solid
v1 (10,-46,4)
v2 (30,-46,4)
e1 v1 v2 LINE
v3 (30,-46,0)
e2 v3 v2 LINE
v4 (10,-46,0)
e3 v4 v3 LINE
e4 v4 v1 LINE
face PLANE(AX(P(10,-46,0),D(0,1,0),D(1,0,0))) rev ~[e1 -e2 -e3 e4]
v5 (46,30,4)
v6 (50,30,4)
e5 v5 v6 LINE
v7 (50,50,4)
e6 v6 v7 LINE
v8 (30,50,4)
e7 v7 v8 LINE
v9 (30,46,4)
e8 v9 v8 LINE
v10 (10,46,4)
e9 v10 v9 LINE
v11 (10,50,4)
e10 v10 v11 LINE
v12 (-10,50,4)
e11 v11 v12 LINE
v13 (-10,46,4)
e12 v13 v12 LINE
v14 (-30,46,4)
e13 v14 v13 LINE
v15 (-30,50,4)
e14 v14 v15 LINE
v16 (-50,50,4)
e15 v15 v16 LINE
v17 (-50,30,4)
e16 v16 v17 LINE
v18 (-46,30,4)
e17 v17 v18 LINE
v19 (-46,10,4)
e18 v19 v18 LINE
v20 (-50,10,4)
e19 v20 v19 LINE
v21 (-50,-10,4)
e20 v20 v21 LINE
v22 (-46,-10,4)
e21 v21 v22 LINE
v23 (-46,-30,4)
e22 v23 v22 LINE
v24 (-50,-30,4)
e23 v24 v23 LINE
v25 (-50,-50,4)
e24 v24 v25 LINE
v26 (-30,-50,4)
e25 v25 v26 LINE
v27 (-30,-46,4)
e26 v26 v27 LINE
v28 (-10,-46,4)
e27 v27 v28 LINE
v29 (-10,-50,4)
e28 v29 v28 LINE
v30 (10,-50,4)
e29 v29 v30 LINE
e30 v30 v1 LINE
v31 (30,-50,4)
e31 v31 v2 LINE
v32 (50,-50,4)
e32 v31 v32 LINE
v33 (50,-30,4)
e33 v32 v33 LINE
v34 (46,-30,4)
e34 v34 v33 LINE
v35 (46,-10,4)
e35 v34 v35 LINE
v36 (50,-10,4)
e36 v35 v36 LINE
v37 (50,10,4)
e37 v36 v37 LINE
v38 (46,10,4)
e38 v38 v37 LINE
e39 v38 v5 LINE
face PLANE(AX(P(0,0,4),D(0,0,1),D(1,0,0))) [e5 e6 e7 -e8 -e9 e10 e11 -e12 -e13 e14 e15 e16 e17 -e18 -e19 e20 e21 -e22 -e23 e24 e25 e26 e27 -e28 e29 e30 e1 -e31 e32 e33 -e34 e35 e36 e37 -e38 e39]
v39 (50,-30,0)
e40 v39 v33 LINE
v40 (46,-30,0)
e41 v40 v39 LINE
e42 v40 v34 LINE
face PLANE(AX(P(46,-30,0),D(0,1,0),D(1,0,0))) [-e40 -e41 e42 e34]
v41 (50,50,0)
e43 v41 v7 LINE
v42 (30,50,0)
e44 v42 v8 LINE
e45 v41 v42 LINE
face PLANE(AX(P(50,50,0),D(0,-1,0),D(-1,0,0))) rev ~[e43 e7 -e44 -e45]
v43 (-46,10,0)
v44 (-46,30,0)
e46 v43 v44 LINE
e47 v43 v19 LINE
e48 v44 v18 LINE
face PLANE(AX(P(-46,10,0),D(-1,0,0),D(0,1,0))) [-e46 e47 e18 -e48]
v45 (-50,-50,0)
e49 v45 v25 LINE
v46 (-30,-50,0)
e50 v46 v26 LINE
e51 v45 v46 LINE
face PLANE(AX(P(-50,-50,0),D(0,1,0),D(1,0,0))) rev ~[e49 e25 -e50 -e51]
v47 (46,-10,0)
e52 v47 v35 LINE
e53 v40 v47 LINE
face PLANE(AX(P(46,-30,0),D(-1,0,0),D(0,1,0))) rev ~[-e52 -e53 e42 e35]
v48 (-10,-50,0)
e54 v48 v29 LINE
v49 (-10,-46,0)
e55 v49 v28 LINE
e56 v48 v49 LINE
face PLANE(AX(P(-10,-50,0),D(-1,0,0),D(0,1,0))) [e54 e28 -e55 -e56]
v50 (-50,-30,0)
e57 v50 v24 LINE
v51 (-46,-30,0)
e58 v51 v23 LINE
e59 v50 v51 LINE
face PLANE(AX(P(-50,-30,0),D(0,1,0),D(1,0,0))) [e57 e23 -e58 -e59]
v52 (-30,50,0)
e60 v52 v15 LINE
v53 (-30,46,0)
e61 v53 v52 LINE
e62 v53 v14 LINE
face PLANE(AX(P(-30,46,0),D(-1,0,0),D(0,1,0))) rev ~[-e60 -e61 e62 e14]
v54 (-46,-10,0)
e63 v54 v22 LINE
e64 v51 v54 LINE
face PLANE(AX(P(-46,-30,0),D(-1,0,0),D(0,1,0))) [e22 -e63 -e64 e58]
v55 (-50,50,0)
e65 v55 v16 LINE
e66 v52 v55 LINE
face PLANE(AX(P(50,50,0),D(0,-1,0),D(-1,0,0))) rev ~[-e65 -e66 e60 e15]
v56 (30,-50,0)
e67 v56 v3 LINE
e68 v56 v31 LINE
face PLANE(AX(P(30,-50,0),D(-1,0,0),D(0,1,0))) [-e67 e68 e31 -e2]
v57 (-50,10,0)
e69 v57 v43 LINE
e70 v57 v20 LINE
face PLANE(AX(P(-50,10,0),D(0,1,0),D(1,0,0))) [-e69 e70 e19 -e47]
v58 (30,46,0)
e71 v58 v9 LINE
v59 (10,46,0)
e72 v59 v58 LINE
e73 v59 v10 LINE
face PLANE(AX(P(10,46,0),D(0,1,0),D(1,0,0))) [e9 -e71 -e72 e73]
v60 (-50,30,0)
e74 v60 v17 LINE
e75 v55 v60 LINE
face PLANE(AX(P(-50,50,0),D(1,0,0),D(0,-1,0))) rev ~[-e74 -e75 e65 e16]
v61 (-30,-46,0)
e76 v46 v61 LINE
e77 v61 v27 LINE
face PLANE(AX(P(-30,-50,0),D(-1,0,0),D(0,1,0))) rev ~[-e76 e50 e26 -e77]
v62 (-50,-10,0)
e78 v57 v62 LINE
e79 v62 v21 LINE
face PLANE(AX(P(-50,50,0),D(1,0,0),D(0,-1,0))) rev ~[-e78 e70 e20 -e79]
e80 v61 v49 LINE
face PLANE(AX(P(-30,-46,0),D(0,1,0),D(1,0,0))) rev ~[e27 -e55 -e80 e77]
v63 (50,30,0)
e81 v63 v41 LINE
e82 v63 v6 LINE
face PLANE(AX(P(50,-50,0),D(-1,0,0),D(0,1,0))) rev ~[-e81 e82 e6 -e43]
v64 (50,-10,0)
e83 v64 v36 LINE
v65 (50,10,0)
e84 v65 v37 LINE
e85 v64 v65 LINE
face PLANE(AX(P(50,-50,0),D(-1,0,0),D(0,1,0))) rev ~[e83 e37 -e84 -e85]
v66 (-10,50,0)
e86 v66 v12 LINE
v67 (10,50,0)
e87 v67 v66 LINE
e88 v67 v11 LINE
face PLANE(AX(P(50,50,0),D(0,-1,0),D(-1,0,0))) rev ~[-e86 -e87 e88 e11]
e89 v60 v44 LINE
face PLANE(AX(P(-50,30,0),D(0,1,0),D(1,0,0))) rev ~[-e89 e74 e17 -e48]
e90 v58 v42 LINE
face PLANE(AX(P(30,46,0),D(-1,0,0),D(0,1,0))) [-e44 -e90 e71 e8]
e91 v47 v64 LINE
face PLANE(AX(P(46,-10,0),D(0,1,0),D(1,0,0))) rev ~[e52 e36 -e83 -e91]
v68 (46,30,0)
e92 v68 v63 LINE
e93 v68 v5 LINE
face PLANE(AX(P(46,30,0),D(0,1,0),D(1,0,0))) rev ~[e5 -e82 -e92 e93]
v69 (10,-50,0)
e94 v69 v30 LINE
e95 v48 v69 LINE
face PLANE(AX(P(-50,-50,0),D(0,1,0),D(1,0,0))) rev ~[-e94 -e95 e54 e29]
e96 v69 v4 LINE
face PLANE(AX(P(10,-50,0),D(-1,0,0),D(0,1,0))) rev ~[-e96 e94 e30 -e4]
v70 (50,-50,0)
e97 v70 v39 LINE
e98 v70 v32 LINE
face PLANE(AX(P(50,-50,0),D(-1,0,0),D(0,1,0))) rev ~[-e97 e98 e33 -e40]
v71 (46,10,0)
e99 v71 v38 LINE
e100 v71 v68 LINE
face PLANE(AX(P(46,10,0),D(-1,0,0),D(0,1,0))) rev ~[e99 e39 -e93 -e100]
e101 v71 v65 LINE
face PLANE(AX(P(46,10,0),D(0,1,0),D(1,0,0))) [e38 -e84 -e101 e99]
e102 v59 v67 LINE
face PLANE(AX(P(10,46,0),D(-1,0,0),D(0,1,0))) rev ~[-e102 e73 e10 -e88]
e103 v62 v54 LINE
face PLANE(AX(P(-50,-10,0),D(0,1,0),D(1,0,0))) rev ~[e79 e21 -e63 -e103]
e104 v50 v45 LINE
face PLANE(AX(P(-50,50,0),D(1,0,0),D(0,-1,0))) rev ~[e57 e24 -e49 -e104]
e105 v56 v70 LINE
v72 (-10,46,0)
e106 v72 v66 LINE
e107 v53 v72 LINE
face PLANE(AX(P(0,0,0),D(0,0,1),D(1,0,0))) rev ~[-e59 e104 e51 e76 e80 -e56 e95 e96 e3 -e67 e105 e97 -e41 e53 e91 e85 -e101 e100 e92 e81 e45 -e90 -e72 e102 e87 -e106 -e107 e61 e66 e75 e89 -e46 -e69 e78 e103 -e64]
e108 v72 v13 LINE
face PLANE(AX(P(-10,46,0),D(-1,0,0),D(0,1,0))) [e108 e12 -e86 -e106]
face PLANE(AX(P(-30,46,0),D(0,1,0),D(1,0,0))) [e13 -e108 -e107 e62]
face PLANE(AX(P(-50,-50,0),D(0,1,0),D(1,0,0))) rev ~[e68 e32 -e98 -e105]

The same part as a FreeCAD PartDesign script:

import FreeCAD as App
import Part
import Sketcher
from FreeCAD import Vector
Q = App.Units.Quantity

doc = App.newDocument("Part")
body = doc.addObject("PartDesign::Body", "Body")

# Sketch on XY plane
sketch1 = body.newObject("Sketcher::SketchObject", "Sketch")
sketch1.AttachmentSupport = (doc.getObject("XY_Plane"), [""])
sketch1.MapMode = "FlatFace"
sketch1.addGeometry([
    Part.LineSegment(Vector(-50, -50, 0), Vector(50, -50, 0)),
    Part.LineSegment(Vector(50, -50, 0), Vector(50, 50, 0)),
    Part.LineSegment(Vector(50, 50, 0), Vector(-50, 50, 0)),
    Part.LineSegment(Vector(-50, 50, 0), Vector(-50, -50, 0)),
], False)
sketch1.addConstraint([
    Sketcher.Constraint("Coincident", 0, 2, 1, 1),
    Sketcher.Constraint("Coincident", 1, 2, 2, 1),
    Sketcher.Constraint("Coincident", 2, 2, 3, 1),
    Sketcher.Constraint("Coincident", 3, 2, 0, 1),
    Sketcher.Constraint("Horizontal", 0),
    Sketcher.Constraint("Vertical", 1),
    Sketcher.Constraint("Horizontal", 2),
    Sketcher.Constraint("Vertical", 3),
    Sketcher.Constraint("Symmetric", 0, 2, 2, 2, -1, 1),
    Sketcher.Constraint("Equal", 2, 1),
    Sketcher.Constraint("DistanceX", 0, 1, 0, 2, Q("100 mm")),
])
pad1 = body.newObject("PartDesign::Pad", "Pad")
pad1.Profile = sketch1
pad1.Length = 4

# Sketch on XY plane
sketch2 = body.newObject("Sketcher::SketchObject", "Sketch001")
sketch2.AttachmentSupport = (doc.getObject("XY_Plane"), [""])
sketch2.MapMode = "FlatFace"
sketch2.addGeometry([
    Part.LineSegment(Vector(-50, 30, 0), Vector(-50, 10, 0)),  # 0
    Part.LineSegment(Vector(-50, 10, 0), Vector(-46, 10, 0)),  # 1
    Part.LineSegment(Vector(-46, 10, 0), Vector(-46, 30, 0)),  # 2
    Part.LineSegment(Vector(-46, 30, 0), Vector(-50, 30, 0)),  # 3
    Part.LineSegment(Vector(-50, -10, 0), Vector(-50, -30, 0)),  # 4
    Part.LineSegment(Vector(-50, -30, 0), Vector(-46, -30, 0)),  # 5
    Part.LineSegment(Vector(-46, -30, 0), Vector(-46, -10, 0)),  # 6
    Part.LineSegment(Vector(-46, -10, 0), Vector(-50, -10, 0)),  # 7
    Part.LineSegment(Vector(-30, -46, 0), Vector(-30, -50, 0)),  # 8
    Part.LineSegment(Vector(-30, -50, 0), Vector(-10, -50, 0)),  # 9
    Part.LineSegment(Vector(-10, -50, 0), Vector(-10, -46, 0)),  # 10
    Part.LineSegment(Vector(-10, -46, 0), Vector(-30, -46, 0)),  # 11
    Part.LineSegment(Vector(10, -46, 0), Vector(10, -50, 0)),  # 12
    Part.LineSegment(Vector(10, -50, 0), Vector(30, -50, 0)),  # 13
    Part.LineSegment(Vector(30, -50, 0), Vector(30, -46, 0)),  # 14
    Part.LineSegment(Vector(30, -46, 0), Vector(10, -46, 0)),  # 15
    Part.LineSegment(Vector(46, -10, 0), Vector(46, -30, 0)),  # 16
    Part.LineSegment(Vector(46, -30, 0), Vector(50, -30, 0)),  # 17
    Part.LineSegment(Vector(50, -30, 0), Vector(50, -10, 0)),  # 18
    Part.LineSegment(Vector(50, -10, 0), Vector(46, -10, 0)),  # 19
    Part.LineSegment(Vector(46, 30, 0), Vector(46, 10, 0)),  # 20
    Part.LineSegment(Vector(46, 10, 0), Vector(50, 10, 0)),  # 21
    Part.LineSegment(Vector(50, 10, 0), Vector(50, 30, 0)),  # 22
    Part.LineSegment(Vector(50, 30, 0), Vector(46, 30, 0)),  # 23
    Part.LineSegment(Vector(10, 50, 0), Vector(10, 46, 0)),  # 24
    Part.LineSegment(Vector(10, 46, 0), Vector(30, 46, 0)),  # 25
    Part.LineSegment(Vector(30, 46, 0), Vector(30, 50, 0)),  # 26
    Part.LineSegment(Vector(30, 50, 0), Vector(10, 50, 0)),  # 27
    Part.LineSegment(Vector(-30, 50, 0), Vector(-30, 46, 0)),  # 28
    Part.LineSegment(Vector(-30, 46, 0), Vector(-10, 46, 0)),  # 29
    Part.LineSegment(Vector(-10, 46, 0), Vector(-10, 50, 0)),  # 30
    Part.LineSegment(Vector(-10, 50, 0), Vector(-30, 50, 0)),  # 31
], False)
sketch2.addConstraint([
    Sketcher.Constraint("Coincident", 0, 2, 1, 1),
    Sketcher.Constraint("Coincident", 1, 2, 2, 1),
    Sketcher.Constraint("Coincident", 2, 2, 3, 1),
    Sketcher.Constraint("Coincident", 3, 2, 0, 1),
    Sketcher.Constraint("Coincident", 4, 2, 5, 1),
    Sketcher.Constraint("Coincident", 5, 2, 6, 1),
    Sketcher.Constraint("Coincident", 6, 2, 7, 1),
    Sketcher.Constraint("Coincident", 7, 2, 4, 1),
    Sketcher.Constraint("Coincident", 8, 2, 9, 1),
    Sketcher.Constraint("Coincident", 9, 2, 10, 1),
    Sketcher.Constraint("Coincident", 10, 2, 11, 1),
    Sketcher.Constraint("Coincident", 11, 2, 8, 1),
    Sketcher.Constraint("Coincident", 12, 2, 13, 1),
    Sketcher.Constraint("Coincident", 13, 2, 14, 1),
    Sketcher.Constraint("Coincident", 14, 2, 15, 1),
    Sketcher.Constraint("Coincident", 15, 2, 12, 1),
    Sketcher.Constraint("Coincident", 16, 2, 17, 1),
    Sketcher.Constraint("Coincident", 17, 2, 18, 1),
    Sketcher.Constraint("Coincident", 18, 2, 19, 1),
    Sketcher.Constraint("Coincident", 19, 2, 16, 1),
    Sketcher.Constraint("Coincident", 20, 2, 21, 1),
    Sketcher.Constraint("Coincident", 21, 2, 22, 1),
    Sketcher.Constraint("Coincident", 22, 2, 23, 1),
    Sketcher.Constraint("Coincident", 23, 2, 20, 1),
    Sketcher.Constraint("Coincident", 24, 2, 25, 1),
    Sketcher.Constraint("Coincident", 25, 2, 26, 1),
    Sketcher.Constraint("Coincident", 26, 2, 27, 1),
    Sketcher.Constraint("Coincident", 27, 2, 24, 1),
    Sketcher.Constraint("Coincident", 28, 2, 29, 1),
    Sketcher.Constraint("Coincident", 29, 2, 30, 1),
    Sketcher.Constraint("Coincident", 30, 2, 31, 1),
    Sketcher.Constraint("Coincident", 31, 2, 28, 1),
    Sketcher.Constraint("Vertical", 0),
    Sketcher.Constraint("Horizontal", 1),
    Sketcher.Constraint("Vertical", 2),
    Sketcher.Constraint("Horizontal", 3),
    Sketcher.Constraint("Vertical", 4),
    Sketcher.Constraint("Horizontal", 5),
    Sketcher.Constraint("Vertical", 6),
    Sketcher.Constraint("Horizontal", 7),
    Sketcher.Constraint("Vertical", 8),
    Sketcher.Constraint("Horizontal", 9),
    Sketcher.Constraint("Vertical", 10),
    Sketcher.Constraint("Horizontal", 11),
    Sketcher.Constraint("Vertical", 12),
    Sketcher.Constraint("Horizontal", 13),
    Sketcher.Constraint("Vertical", 14),
    Sketcher.Constraint("Horizontal", 15),
    Sketcher.Constraint("Vertical", 16),
    Sketcher.Constraint("Horizontal", 17),
    Sketcher.Constraint("Vertical", 18),
    Sketcher.Constraint("Horizontal", 19),
    Sketcher.Constraint("Vertical", 20),
    Sketcher.Constraint("Horizontal", 21),
    Sketcher.Constraint("Vertical", 22),
    Sketcher.Constraint("Horizontal", 23),
    Sketcher.Constraint("Vertical", 24),
    Sketcher.Constraint("Horizontal", 25),
    Sketcher.Constraint("Vertical", 26),
    Sketcher.Constraint("Horizontal", 27),
    Sketcher.Constraint("Vertical", 28),
    Sketcher.Constraint("Horizontal", 29),
    Sketcher.Constraint("Vertical", 30),
    Sketcher.Constraint("Horizontal", 31),
    Sketcher.Constraint("Symmetric", 2, 2, 16, 2, -1, 1),
    Sketcher.Constraint("Symmetric", 0, 2, 18, 2, -1, 1),
    Sketcher.Constraint("Symmetric", 6, 2, 20, 2, -1, 1),
    Sketcher.Constraint("Symmetric", 4, 2, 22, 2, -1, 1),
    Sketcher.Constraint("Symmetric", 10, 2, 24, 2, -1, 1),
    Sketcher.Constraint("Symmetric", 8, 2, 26, 2, -1, 1),
    Sketcher.Constraint("Symmetric", 14, 2, 28, 2, -1, 1),
    Sketcher.Constraint("Symmetric", 12, 2, 30, 2, -1, 1),
    Sketcher.Constraint("Symmetric", 9, 2, 12, 2, -2),
    Sketcher.Constraint("Symmetric", 11, 2, 14, 2, -2),
    Sketcher.Constraint("Symmetric", 5, 2, 16, 2, -2),
    Sketcher.Constraint("Symmetric", 7, 2, 18, 2, -2),
    Sketcher.Constraint("Equal", 31, 0),
    Sketcher.Constraint("Equal", 23, 8),
    Sketcher.Constraint("DistanceX", 1, 1, 1, 2, Q("4 mm")),
    Sketcher.Constraint("DistanceX", 9, 1, 9, 2, Q("20 mm")),
    Sketcher.Constraint("DistanceX", 0, 2, -1, 1, Q("50 mm")),
    Sketcher.Constraint("DistanceY", -1, 1, 0, 2, Q("10 mm")),
    Sketcher.Constraint("DistanceX", 8, 2, -1, 1, Q("30 mm")),
    Sketcher.Constraint("DistanceY", 8, 2, -1, 1, Q("50 mm")),
])
pocket1 = body.newObject("PartDesign::Pocket", "Pocket")
pocket1.Profile = sketch2
pocket1.Length = 4
pocket1.Reversed = True

doc.recompute()
